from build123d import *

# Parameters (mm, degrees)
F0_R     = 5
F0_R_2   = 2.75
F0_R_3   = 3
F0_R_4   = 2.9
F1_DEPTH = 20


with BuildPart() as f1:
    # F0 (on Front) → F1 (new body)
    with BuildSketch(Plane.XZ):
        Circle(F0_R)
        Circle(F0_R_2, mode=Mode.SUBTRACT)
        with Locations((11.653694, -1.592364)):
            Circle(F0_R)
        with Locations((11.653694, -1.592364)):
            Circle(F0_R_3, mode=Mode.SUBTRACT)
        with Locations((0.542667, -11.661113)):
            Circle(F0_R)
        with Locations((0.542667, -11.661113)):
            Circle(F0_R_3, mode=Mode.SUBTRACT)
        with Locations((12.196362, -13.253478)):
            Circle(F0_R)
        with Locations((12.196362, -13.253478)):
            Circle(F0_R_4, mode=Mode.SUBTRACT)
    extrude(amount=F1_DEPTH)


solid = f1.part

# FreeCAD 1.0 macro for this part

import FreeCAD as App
import Part
import Sketcher
Q = App.Units.Quantity

doc = App.newDocument("Part")
body = doc.addObject("PartDesign::Body", "Body")
body.AllowCompound = True

# Sketch on XZ plane
sketch1 = doc.addObject("Sketcher::SketchObject", "Sketch")
body.addObject(sketch1)
sketch1.AttachmentSupport = (doc.XZ_Plane, [""])
sketch1.MapMode = "FlatFace"
sketch1.addGeometry(Part.Circle(App.Vector(0, 0, 0), App.Vector(0, 0, 1), 5), False)
sketch1.addGeometry(Part.Circle(App.Vector(0, 0, 0), App.Vector(0, 0, 1), 2.8), False)
sketch1.addGeometry(Part.Circle(App.Vector(11.7, -1.6, 0), App.Vector(0, 0, 1), 5), False)
sketch1.addGeometry(Part.Circle(App.Vector(11.7, -1.6, 0), App.Vector(0, 0, 1), 3), False)
sketch1.addGeometry(Part.Circle(App.Vector(0.5, -11.7, 0), App.Vector(0, 0, 1), 5), False)
sketch1.addGeometry(Part.Circle(App.Vector(0.5, -11.7, 0), App.Vector(0, 0, 1), 3), False)
sketch1.addGeometry(Part.Circle(App.Vector(12.2, -13.3, 0), App.Vector(0, 0, 1), 5), False)
sketch1.addGeometry(Part.Circle(App.Vector(12.2, -13.3, 0), App.Vector(0, 0, 1), 2.9), False)
sketch1.addConstraint(Sketcher.Constraint("Coincident", 0, 3, -1, 1))
sketch1.addConstraint(Sketcher.Constraint("Coincident", 1, 3, -1, 1))
sketch1.addConstraint(Sketcher.Constraint("Coincident", 3, 3, 2, 3))
sketch1.addConstraint(Sketcher.Constraint("Coincident", 5, 3, 4, 3))
sketch1.addConstraint(Sketcher.Constraint("Coincident", 7, 3, 6, 3))
sketch1.addConstraint(Sketcher.Constraint("Equal", 0, 2))
sketch1.addConstraint(Sketcher.Constraint("Equal", 2, 4))
sketch1.addConstraint(Sketcher.Constraint("Equal", 3, 5))
sketch1.addConstraint(Sketcher.Constraint("Equal", 4, 6))
sketch1.addConstraint(Sketcher.Constraint("Diameter", 0, Q("10 mm")))
sketch1.addConstraint(Sketcher.Constraint("Diameter", 3, Q("6 mm")))
sketch1.addConstraint(Sketcher.Constraint("Diameter", 1, Q("5.5 mm")))
sketch1.addConstraint(Sketcher.Constraint("Diameter", 7, Q("5.8 mm")))
sketch1.addConstraint(Sketcher.Constraint("DistanceY", 4, 3, 2, 3, Q("10.068749 mm")))
sketch1.addConstraint(Sketcher.Constraint("DistanceX", 2, 3, 6, 3, Q("0.542668 mm")))
sketch1.addConstraint(Sketcher.Constraint("DistanceX", -1, 1, 2, 3, Q("11.653694 mm")))
sketch1.addConstraint(Sketcher.Constraint("DistanceY", 2, 3, -1, 1, Q("1.592364 mm")))
sketch1.addConstraint(Sketcher.Constraint("DistanceX", -1, 1, 4, 3, Q("0.542667 mm")))
sketch1.addConstraint(Sketcher.Constraint("DistanceY", 6, 3, -1, 1, Q("13.253478 mm")))
pad1 = doc.addObject("PartDesign::Pad", "Pad")
body.addObject(pad1)
pad1.Profile = sketch1
pad1.Length = 20

doc.recompute()
